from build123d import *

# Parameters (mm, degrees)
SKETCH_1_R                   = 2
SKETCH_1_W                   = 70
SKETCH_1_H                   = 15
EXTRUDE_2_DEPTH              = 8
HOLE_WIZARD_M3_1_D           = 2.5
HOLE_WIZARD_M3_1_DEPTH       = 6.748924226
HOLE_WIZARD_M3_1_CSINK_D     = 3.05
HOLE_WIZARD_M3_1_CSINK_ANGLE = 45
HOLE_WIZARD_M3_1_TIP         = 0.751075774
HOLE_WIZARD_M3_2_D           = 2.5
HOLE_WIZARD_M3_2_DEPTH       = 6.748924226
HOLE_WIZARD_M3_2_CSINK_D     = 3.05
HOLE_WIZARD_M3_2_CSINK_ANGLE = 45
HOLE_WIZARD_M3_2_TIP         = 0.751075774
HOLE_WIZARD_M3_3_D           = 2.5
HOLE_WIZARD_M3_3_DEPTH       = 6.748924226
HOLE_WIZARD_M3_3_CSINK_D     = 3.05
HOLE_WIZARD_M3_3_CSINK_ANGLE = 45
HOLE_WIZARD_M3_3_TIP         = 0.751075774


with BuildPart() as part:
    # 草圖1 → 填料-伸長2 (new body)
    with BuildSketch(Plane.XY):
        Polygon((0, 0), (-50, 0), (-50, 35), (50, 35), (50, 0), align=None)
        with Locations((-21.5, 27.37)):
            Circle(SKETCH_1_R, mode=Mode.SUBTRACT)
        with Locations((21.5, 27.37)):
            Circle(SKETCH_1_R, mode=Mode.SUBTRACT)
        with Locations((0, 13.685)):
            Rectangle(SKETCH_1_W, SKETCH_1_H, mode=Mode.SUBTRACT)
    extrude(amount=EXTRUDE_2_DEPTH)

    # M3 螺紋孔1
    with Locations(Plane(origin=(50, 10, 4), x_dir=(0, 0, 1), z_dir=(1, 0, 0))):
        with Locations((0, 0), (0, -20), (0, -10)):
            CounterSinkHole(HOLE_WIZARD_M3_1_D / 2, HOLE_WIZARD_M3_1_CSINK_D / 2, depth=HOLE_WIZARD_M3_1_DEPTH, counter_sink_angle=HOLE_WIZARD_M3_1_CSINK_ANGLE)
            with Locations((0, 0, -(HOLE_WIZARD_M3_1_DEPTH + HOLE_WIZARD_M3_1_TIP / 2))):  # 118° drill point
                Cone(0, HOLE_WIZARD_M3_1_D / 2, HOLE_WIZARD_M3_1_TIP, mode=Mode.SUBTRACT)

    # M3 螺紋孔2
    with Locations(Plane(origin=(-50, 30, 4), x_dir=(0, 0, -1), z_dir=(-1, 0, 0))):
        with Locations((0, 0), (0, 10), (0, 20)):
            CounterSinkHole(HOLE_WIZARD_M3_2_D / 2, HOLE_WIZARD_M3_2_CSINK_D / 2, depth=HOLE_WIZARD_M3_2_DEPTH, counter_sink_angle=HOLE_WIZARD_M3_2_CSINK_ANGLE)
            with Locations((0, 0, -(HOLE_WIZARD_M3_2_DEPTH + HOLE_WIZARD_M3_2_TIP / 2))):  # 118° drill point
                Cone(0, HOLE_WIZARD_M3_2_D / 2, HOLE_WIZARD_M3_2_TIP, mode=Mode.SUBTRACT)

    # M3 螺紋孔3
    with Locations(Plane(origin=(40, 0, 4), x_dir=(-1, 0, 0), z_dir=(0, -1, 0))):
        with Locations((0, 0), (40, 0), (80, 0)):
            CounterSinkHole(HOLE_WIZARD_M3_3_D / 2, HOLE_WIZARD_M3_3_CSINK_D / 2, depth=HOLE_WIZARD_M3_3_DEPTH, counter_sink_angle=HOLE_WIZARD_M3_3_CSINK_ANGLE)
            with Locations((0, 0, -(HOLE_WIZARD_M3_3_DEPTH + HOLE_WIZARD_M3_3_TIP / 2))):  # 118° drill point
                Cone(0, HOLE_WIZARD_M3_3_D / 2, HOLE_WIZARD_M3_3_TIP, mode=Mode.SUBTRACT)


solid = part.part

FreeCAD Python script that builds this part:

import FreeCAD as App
import Part
import Sketcher

V = App.Vector

doc = App.newDocument("Part")
body = doc.addObject("PartDesign::Body", "Body")

# Sketch on XY plane
sketch1 = doc.addObject("Sketcher::SketchObject", "Sketch")
body.addObject(sketch1)
sketch1.AttachmentSupport = (doc.XY_Plane, [""])
sketch1.MapMode = "FlatFace"
sketch1.addGeometry([
    Part.LineSegment(V(-50, 0, 0), V(50, 0, 0)),  # 0
    Part.LineSegment(V(50, 0, 0), V(50, 35, 0)),  # 1
    Part.LineSegment(V(50, 35, 0), V(-50, 35, 0)),  # 2
    Part.LineSegment(V(-50, 35, 0), V(-50, 0, 0)),  # 3
    Part.LineSegment(V(-35, 6.185, 0), V(-35, 21.185, 0)),  # 4
    Part.LineSegment(V(-35, 21.185, 0), V(35, 21.185, 0)),  # 5
    Part.LineSegment(V(35, 21.185, 0), V(35, 6.185, 0)),  # 6
    Part.LineSegment(V(35, 6.185, 0), V(-35, 6.185, 0)),  # 7
    Part.Circle(V(21.5, 27.37, 0), V(0, 0, 1), 2),  # 8
    Part.Circle(V(-21.5, 27.37, 0), V(0, 0, 1), 2),  # 9
], False)
sketch1.addConstraint([
    Sketcher.Constraint("Coincident", 0, 2, 1, 1),
    Sketcher.Constraint("Coincident", 1, 2, 2, 1),
    Sketcher.Constraint("Coincident", 2, 2, 3, 1),
    Sketcher.Constraint("Coincident", 3, 2, 0, 1),
    Sketcher.Constraint("Coincident", 4, 2, 5, 1),
    Sketcher.Constraint("Coincident", 5, 2, 6, 1),
    Sketcher.Constraint("Coincident", 6, 2, 7, 1),
    Sketcher.Constraint("Coincident", 7, 2, 4, 1),
    Sketcher.Constraint("Horizontal", 0),
    Sketcher.Constraint("Vertical", 1),
    Sketcher.Constraint("Horizontal", 2),
    Sketcher.Constraint("Vertical", 3),
    Sketcher.Constraint("Vertical", 4),
    Sketcher.Constraint("Horizontal", 5),
    Sketcher.Constraint("Vertical", 6),
    Sketcher.Constraint("Horizontal", 7),
    Sketcher.Constraint("Equal", 8, 9),
    Sketcher.Constraint("Symmetric", 0, 2, 3, 2, -1, 1),
    Sketcher.Constraint("Symmetric", 8, 3, 9, 3, -2),
    Sketcher.Constraint("Diameter", 8, 4.0),
    Sketcher.Constraint("DistanceX", 0, 1, 0, 2, 100.0),
    Sketcher.Constraint("DistanceX", 5, 1, 5, 2, 70.0),
    Sketcher.Constraint("DistanceY", 1, 1, 1, 2, 35.0),
    Sketcher.Constraint("DistanceY", 4, 1, 4, 2, 15.0),
    Sketcher.Constraint("DistanceX", 4, 2, -1, 1, 35.0),
    Sketcher.Constraint("DistanceX", 9, 3, 8, 3, 43.0),
    Sketcher.Constraint("DistanceY", -1, 1, 8, 3, 27.37),
    Sketcher.Constraint("DistanceY", -1, 1, 4, 2, 21.185),
])
pad1 = doc.addObject("PartDesign::Pad", "Pad")
body.addObject(pad1)
pad1.Profile = sketch1
pad1.Length = 8

# Sketch on YZ plane
sketch2 = doc.addObject("Sketcher::SketchObject", "Sketch001")
body.addObject(sketch2)
sketch2.AttachmentSupport = (doc.YZ_Plane, [""])
sketch2.MapMode = "FlatFace"
sketch2.AttachmentOffset = App.Placement(V(0, 0, 50), App.Rotation())
sketch2.addGeometry([
    Part.Circle(V(10, 4, 0), V(0, 0, 1), 1.25),
    Part.Circle(V(30, 4, 0), V(0, 0, 1), 1.25),
    Part.Circle(V(20, 4, 0), V(0, 0, 1), 1.25),
], False)
sketch2.addConstraint([
    Sketcher.Constraint("Equal", 0, 1),
    Sketcher.Constraint("Equal", 1, 2),
    Sketcher.Constraint("Horizontal", 0, 3, 1, 3),
    Sketcher.Constraint("Horizontal", 1, 3, 2, 3),
    Sketcher.Constraint("Diameter", 0, 2.5),
    Sketcher.Constraint("DistanceX", -1, 1, 0, 3, 10.0),
    Sketcher.Constraint("DistanceY", -1, 1, 0, 3, 4.0),
    Sketcher.Constraint("DistanceX", -1, 1, 1, 3, 30.0),
    Sketcher.Constraint("DistanceX", -1, 1, 2, 3, 20.0),
])
doc.recompute()
hole = doc.addObject("PartDesign::Hole", "Hole")
body.addObject(hole)
hole.Profile = sketch2
hole.ThreadType = "None"
hole.Diameter = 2.5
hole.DepthType = "Dimension"
hole.Depth = 6.748924
hole.DrillPoint = "Angled"
hole.DrillPointAngle = 118
hole.HoleCutType = "Countersink"
hole.HoleCutDiameter = 3.05
hole.HoleCutCountersinkAngle = 45

# Sketch on YZ plane
sketch3 = doc.addObject("Sketcher::SketchObject", "Sketch002")
body.addObject(sketch3)
sketch3.AttachmentSupport = (doc.YZ_Plane, [""])
sketch3.MapMode = "FlatFace"
sketch3.AttachmentOffset = App.Placement(V(0, 0, -50), App.Rotation())
sketch3.addGeometry([
    Part.Circle(V(30, 4, 0), V(0, 0, 1), 1.25),
    Part.Circle(V(20, 4, 0), V(0, 0, 1), 1.25),
    Part.Circle(V(10, 4, 0), V(0, 0, 1), 1.25),
], False)
sketch3.addConstraint([
    Sketcher.Constraint("Equal", 0, 1),
    Sketcher.Constraint("Equal", 1, 2),
    Sketcher.Constraint("Horizontal", 0, 3, 1, 3),
    Sketcher.Constraint("Horizontal", 1, 3, 2, 3),
    Sketcher.Constraint("Diameter", 0, 2.5),
    Sketcher.Constraint("DistanceX", -1, 1, 0, 3, 30.0),
    Sketcher.Constraint("DistanceY", -1, 1, 0, 3, 4.0),
    Sketcher.Constraint("DistanceX", -1, 1, 1, 3, 20.0),
    Sketcher.Constraint("DistanceX", -1, 1, 2, 3, 10.0),
])
doc.recompute()
hole2 = doc.addObject("PartDesign::Hole", "Hole001")
body.addObject(hole2)
hole2.Profile = sketch3
hole2.ThreadType = "None"
hole2.Diameter = 2.5
hole2.DepthType = "Dimension"
hole2.Depth = 6.748924
hole2.DrillPoint = "Angled"
hole2.DrillPointAngle = 118
hole2.HoleCutType = "Countersink"
hole2.HoleCutDiameter = 3.05
hole2.HoleCutCountersinkAngle = 45
hole2.Reversed = True

# Sketch on XZ plane
sketch4 = doc.addObject("Sketcher::SketchObject", "Sketch003")
body.addObject(sketch4)
sketch4.AttachmentSupport = (doc.XZ_Plane, [""])
sketch4.MapMode = "FlatFace"
sketch4.addGeometry([
    Part.Circle(V(40, 4, 0), V(0, 0, 1), 1.25),
    Part.Circle(V(0, 4, 0), V(0, 0, 1), 1.25),
    Part.Circle(V(-40, 4, 0), V(0, 0, 1), 1.25),
], False)
sketch4.addConstraint([
    Sketcher.Constraint("Equal", 0, 1),
    Sketcher.Constraint("Equal", 1, 2),
    Sketcher.Constraint("Symmetric", 0, 3, 2, 3, -2),
    Sketcher.Constraint("PointOnObject", 1, 3, -2),
    Sketcher.Constraint("Horizontal", 0, 3, 1, 3),
    Sketcher.Constraint("Diameter", 0, 2.5),
    Sketcher.Constraint("DistanceX", -1, 1, 0, 3, 40.0),
    Sketcher.Constraint("DistanceY", -1, 1, 0, 3, 4.0),
])
doc.recompute()
hole3 = doc.addObject("PartDesign::Hole", "Hole002")
body.addObject(hole3)
hole3.Profile = sketch4
hole3.ThreadType = "None"
hole3.Diameter = 2.5
hole3.DepthType = "Dimension"
hole3.Depth = 6.748924
hole3.DrillPoint = "Angled"
hole3.DrillPointAngle = 118
hole3.HoleCutType = "Countersink"
hole3.HoleCutDiameter = 3.05
hole3.HoleCutCountersinkAngle = 45

doc.recompute()
